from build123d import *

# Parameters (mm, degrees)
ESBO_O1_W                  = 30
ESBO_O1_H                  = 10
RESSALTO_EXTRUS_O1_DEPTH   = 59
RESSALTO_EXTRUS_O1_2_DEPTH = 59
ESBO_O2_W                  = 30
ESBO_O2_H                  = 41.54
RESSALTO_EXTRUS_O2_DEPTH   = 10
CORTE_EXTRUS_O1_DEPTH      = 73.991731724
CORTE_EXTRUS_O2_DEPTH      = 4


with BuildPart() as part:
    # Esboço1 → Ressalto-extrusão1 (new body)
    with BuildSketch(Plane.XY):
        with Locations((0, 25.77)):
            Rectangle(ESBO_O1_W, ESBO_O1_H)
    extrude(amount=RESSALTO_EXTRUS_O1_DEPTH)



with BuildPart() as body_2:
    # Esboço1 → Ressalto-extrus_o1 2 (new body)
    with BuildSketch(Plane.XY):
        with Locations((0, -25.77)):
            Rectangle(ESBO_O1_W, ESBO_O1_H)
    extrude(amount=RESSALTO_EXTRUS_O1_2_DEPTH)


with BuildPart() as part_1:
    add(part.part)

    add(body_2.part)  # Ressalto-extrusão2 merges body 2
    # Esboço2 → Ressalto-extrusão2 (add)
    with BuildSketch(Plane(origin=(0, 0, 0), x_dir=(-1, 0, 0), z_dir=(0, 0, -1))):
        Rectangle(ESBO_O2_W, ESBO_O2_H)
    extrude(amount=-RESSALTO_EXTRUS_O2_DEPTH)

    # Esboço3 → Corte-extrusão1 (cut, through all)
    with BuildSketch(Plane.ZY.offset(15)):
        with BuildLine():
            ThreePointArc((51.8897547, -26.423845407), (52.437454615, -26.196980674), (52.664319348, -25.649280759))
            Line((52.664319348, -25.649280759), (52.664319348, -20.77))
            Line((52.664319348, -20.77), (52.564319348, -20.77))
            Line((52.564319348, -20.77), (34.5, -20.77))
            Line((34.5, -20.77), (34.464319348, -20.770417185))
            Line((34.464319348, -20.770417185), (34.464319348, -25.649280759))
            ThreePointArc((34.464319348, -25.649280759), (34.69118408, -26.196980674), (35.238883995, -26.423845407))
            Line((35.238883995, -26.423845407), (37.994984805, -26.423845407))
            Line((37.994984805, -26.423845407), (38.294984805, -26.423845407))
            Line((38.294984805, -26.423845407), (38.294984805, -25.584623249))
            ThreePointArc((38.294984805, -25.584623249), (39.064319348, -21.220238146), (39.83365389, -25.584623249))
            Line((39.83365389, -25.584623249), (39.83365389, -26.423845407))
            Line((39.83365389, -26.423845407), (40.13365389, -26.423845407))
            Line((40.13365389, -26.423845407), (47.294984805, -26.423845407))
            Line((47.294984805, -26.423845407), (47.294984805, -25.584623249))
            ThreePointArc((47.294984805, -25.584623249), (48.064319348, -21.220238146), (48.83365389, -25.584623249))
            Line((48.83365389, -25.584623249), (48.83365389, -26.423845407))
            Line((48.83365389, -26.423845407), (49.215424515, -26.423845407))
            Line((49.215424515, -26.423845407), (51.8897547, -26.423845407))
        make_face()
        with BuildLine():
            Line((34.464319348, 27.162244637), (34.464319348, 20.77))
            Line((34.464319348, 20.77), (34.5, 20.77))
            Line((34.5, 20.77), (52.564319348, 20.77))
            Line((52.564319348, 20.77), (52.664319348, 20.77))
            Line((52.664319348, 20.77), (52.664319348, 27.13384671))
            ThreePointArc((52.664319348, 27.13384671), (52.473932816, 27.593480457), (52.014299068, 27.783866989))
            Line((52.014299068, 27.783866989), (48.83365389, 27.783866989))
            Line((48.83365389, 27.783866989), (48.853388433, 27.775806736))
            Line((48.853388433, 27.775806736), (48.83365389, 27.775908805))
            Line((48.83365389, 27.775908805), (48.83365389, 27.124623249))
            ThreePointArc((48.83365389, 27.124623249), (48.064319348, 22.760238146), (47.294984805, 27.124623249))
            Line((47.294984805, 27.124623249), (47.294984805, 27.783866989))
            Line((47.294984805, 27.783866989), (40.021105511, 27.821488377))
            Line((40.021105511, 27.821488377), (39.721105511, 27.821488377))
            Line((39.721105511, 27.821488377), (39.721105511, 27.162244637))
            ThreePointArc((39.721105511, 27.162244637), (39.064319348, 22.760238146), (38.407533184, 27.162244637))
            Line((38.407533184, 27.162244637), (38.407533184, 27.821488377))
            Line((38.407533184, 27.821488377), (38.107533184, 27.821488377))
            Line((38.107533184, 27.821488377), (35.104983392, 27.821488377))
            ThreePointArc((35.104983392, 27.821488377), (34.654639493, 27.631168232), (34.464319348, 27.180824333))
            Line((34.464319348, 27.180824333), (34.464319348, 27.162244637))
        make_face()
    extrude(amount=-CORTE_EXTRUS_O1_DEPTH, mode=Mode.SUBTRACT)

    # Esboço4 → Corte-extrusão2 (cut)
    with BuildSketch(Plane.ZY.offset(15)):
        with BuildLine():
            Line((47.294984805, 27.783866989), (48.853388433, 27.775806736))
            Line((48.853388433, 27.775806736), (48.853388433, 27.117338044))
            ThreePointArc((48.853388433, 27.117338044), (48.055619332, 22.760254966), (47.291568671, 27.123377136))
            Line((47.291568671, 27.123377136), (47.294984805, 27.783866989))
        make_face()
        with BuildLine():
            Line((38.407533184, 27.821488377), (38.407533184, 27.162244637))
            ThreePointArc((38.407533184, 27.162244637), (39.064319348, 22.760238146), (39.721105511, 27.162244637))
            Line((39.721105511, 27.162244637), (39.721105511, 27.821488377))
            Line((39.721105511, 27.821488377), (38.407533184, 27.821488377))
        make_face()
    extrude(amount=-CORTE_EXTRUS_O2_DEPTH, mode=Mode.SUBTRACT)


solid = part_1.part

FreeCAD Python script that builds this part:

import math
import FreeCAD as App
import Part
import Sketcher
from FreeCAD import Vector

doc = App.newDocument("Part")
body = doc.addObject("PartDesign::Body", "Body")

# Sketch on XY plane
sketch1 = body.newObject("Sketcher::SketchObject", "Sketch")
sketch1.AttachmentSupport = (doc.getObject("XY_Plane"), [""])
sketch1.MapMode = "FlatFace"
sketch1.addGeometry(Part.LineSegment(Vector(-15, 31, 0), Vector(-15, 21, 0)), False)
sketch1.addGeometry(Part.LineSegment(Vector(-15, 21, 0), Vector(15, 21, 0)), False)
sketch1.addGeometry(Part.LineSegment(Vector(15, 21, 0), Vector(15, 31, 0)), False)
sketch1.addGeometry(Part.LineSegment(Vector(15, 31, 0), Vector(-15, 31, 0)), False)
sketch1.addConstraint(Sketcher.Constraint("Coincident", 0, 2, 1, 1))
sketch1.addConstraint(Sketcher.Constraint("Coincident", 1, 2, 2, 1))
sketch1.addConstraint(Sketcher.Constraint("Coincident", 2, 2, 3, 1))
sketch1.addConstraint(Sketcher.Constraint("Coincident", 3, 2, 0, 1))
sketch1.addConstraint(Sketcher.Constraint("Vertical", 0))
sketch1.addConstraint(Sketcher.Constraint("Horizontal", 1))
sketch1.addConstraint(Sketcher.Constraint("Vertical", 2))
sketch1.addConstraint(Sketcher.Constraint("Horizontal", 3))
sketch1.addConstraint(Sketcher.Constraint("DistanceX", 1, 1, 1, 2, 30.0))
sketch1.addConstraint(Sketcher.Constraint("DistanceY", 0, 2, 0, 1, 10.0))
sketch1.addConstraint(Sketcher.Constraint("DistanceX", 0, 2, -1, 1, 15.0))
sketch1.addConstraint(Sketcher.Constraint("DistanceY", -1, 1, 0, 2, 20.77))
pad1 = body.newObject("PartDesign::Pad", "Pad")
pad1.Profile = sketch1
pad1.Length = 59
body2 = doc.addObject("PartDesign::Body", "Body001")

# Sketch on XY plane
sketch2 = body2.newObject("Sketcher::SketchObject", "Sketch001")
sketch2.AttachmentSupport = (doc.getObject("XY_Plane001"), [""])
sketch2.MapMode = "FlatFace"
sketch2.addGeometry(Part.LineSegment(Vector(-15, -21, 0), Vector(-15, -31, 0)), False)
sketch2.addGeometry(Part.LineSegment(Vector(-15, -31, 0), Vector(15, -31, 0)), False)
sketch2.addGeometry(Part.LineSegment(Vector(15, -31, 0), Vector(15, -21, 0)), False)
sketch2.addGeometry(Part.LineSegment(Vector(15, -21, 0), Vector(-15, -21, 0)), False)
sketch2.addConstraint(Sketcher.Constraint("Coincident", 0, 2, 1, 1))
sketch2.addConstraint(Sketcher.Constraint("Coincident", 1, 2, 2, 1))
sketch2.addConstraint(Sketcher.Constraint("Coincident", 2, 2, 3, 1))
sketch2.addConstraint(Sketcher.Constraint("Coincident", 3, 2, 0, 1))
sketch2.addConstraint(Sketcher.Constraint("Vertical", 0))
sketch2.addConstraint(Sketcher.Constraint("Horizontal", 1))
sketch2.addConstraint(Sketcher.Constraint("Vertical", 2))
sketch2.addConstraint(Sketcher.Constraint("Horizontal", 3))
sketch2.addConstraint(Sketcher.Constraint("DistanceX", 1, 1, 1, 2, 30.0))
sketch2.addConstraint(Sketcher.Constraint("DistanceY", 0, 2, 0, 1, 10.0))
sketch2.addConstraint(Sketcher.Constraint("DistanceX", 0, 2, -1, 1, 15.0))
sketch2.addConstraint(Sketcher.Constraint("DistanceY", 0, 2, -1, 1, 30.77))
pad2 = body2.newObject("PartDesign::Pad", "Pad001")
pad2.Profile = sketch2
pad2.Length = 59
body.AllowCompound = True
doc.recompute()

boolean = body.newObject("PartDesign::Boolean", "Boolean")
boolean.Type = "Fuse"
boolean.addObjects([body2])

# Sketch on XY plane
sketch3 = body.newObject("Sketcher::SketchObject", "Sketch002")
sketch3.AttachmentSupport = (doc.getObject("XY_Plane"), [""])
sketch3.MapMode = "FlatFace"
sketch3.addGeometry(Part.LineSegment(Vector(15, 21, 0), Vector(15, -21, 0)), False)
sketch3.addGeometry(Part.LineSegment(Vector(15, -21, 0), Vector(-15, -21, 0)), False)
sketch3.addGeometry(Part.LineSegment(Vector(-15, -21, 0), Vector(-15, 21, 0)), False)
sketch3.addGeometry(Part.LineSegment(Vector(-15, 21, 0), Vector(15, 21, 0)), False)
sketch3.addConstraint(Sketcher.Constraint("Coincident", 0, 2, 1, 1))
sketch3.addConstraint(Sketcher.Constraint("Coincident", 1, 2, 2, 1))
sketch3.addConstraint(Sketcher.Constraint("Coincident", 2, 2, 3, 1))
sketch3.addConstraint(Sketcher.Constraint("Coincident", 3, 2, 0, 1))
sketch3.addConstraint(Sketcher.Constraint("Vertical", 0))
sketch3.addConstraint(Sketcher.Constraint("Horizontal", 1))
sketch3.addConstraint(Sketcher.Constraint("Vertical", 2))
sketch3.addConstraint(Sketcher.Constraint("Horizontal", 3))
sketch3.addConstraint(Sketcher.Constraint("Symmetric", 0, 2, 2, 2, -1, 1))
sketch3.addConstraint(Sketcher.Constraint("DistanceX", 1, 2, 1, 1, 30.0))
sketch3.addConstraint(Sketcher.Constraint("DistanceY", 0, 2, 0, 1, 41.54))
pad3 = body.newObject("PartDesign::Pad", "Pad002")
pad3.Profile = sketch3
pad3.Length = 10

# Sketch on YZ plane
sketch4 = body.newObject("Sketcher::SketchObject", "Sketch003")
sketch4.AttachmentSupport = (doc.getObject("YZ_Plane"), [""])
sketch4.MapMode = "FlatFace"
sketch4.AttachmentOffset = App.Placement(Vector(0, 0, -15), App.Rotation())
sketch4.addGeometry(Part.ArcOfCircle(Part.Circle(Vector(-25.649, 51.89, 0), Vector(0, 0, 1), 0.775), math.radians(90), math.radians(180)), False)
sketch4.addGeometry(Part.LineSegment(Vector(-25.649, 52.664, 0), Vector(-20.77, 52.664, 0)), False)
sketch4.addGeometry(Part.LineSegment(Vector(-20.77, 52.664, 0), Vector(-20.77, 34.5, 0)), False)
sketch4.addGeometry(Part.LineSegment(Vector(-20.77, 34.5, 0), Vector(-20.77, 34.464, 0)), False)
sketch4.addGeometry(Part.LineSegment(Vector(-20.77, 34.464, 0), Vector(-25.649, 34.464, 0)), False)
sketch4.addGeometry(Part.ArcOfCircle(Part.Circle(Vector(-25.649, 35.239, 0), Vector(0, 0, 1), 0.775), math.radians(180), math.radians(270)), False)
sketch4.addGeometry(Part.LineSegment(Vector(-26.424, 35.239, 0), Vector(-26.424, 38.295, 0)), False)
sketch4.addGeometry(Part.LineSegment(Vector(-26.424, 38.295, 0), Vector(-25.585, 38.295, 0)), False)
sketch4.addGeometry(Part.ArcOfCircle(Part.Circle(Vector(-23.47, 39.064, 0), Vector(0, 0, 1), 2.25), math.radians(-160), math.radians(160)), False)
sketch4.addGeometry(Part.LineSegment(Vector(-25.585, 39.834, 0), Vector(-26.424, 39.834, 0)), False)
sketch4.addGeometry(Part.LineSegment(Vector(-26.424, 39.834, 0), Vector(-26.424, 47.295, 0)), False)
sketch4.addGeometry(Part.LineSegment(Vector(-26.424, 47.295, 0), Vector(-25.585, 47.295, 0)), False)
sketch4.addGeometry(Part.ArcOfCircle(Part.Circle(Vector(-23.47, 48.064, 0), Vector(0, 0, 1), 2.25), math.radians(-160), math.radians(160)), False)
sketch4.addGeometry(Part.LineSegment(Vector(-25.585, 48.834, 0), Vector(-26.424, 48.834, 0)), False)
sketch4.addGeometry(Part.LineSegment(Vector(-26.424, 48.834, 0), Vector(-26.424, 51.89, 0)), False)
sketch4.addGeometry(Part.LineSegment(Vector(20.77, 34.464, 0), Vector(20.77, 52.664, 0)), False)
sketch4.addGeometry(Part.LineSegment(Vector(20.77, 52.664, 0), Vector(27.134, 52.664, 0)), False)
sketch4.addGeometry(Part.ArcOfCircle(Part.Circle(Vector(27.134, 52.014, 0), Vector(0, 0, 1), 0.65), math.radians(0), math.radians(90)), False)
sketch4.addGeometry(Part.LineSegment(Vector(27.784, 52.014, 0), Vector(27.784, 48.834, 0)), False)
sketch4.addGeometry(Part.LineSegment(Vector(27.784, 48.834, 0), Vector(27.776, 48.853, 0)), False)
sketch4.addGeometry(Part.LineSegment(Vector(27.776, 48.853, 0), Vector(27.776, 48.834, 0)), False)
sketch4.addGeometry(Part.LineSegment(Vector(27.776, 48.834, 0), Vector(27.125, 48.834, 0)), False)
sketch4.addGeometry(Part.ArcOfCircle(Part.Circle(Vector(25.01, 48.064, 0), Vector(0, 0, 1), 2.25), math.radians(20), math.radians(340)), False)
sketch4.addGeometry(Part.LineSegment(Vector(27.125, 47.295, 0), Vector(27.784, 47.295, 0)), False)
sketch4.addGeometry(Part.LineSegment(Vector(27.784, 47.295, 0), Vector(27.821, 40.021, 0)), False)
sketch4.addGeometry(Part.LineSegment(Vector(27.821, 40.021, 0), Vector(27.821, 39.721, 0)), False)
sketch4.addGeometry(Part.LineSegment(Vector(27.821, 39.721, 0), Vector(27.162, 39.721, 0)), False)
sketch4.addGeometry(Part.ArcOfCircle(Part.Circle(Vector(25.01, 39.064, 0), Vector(0, 0, 1), 2.25), math.radians(17), math.radians(343)), False)
sketch4.addGeometry(Part.LineSegment(Vector(27.162, 38.408, 0), Vector(27.821, 38.408, 0)), False)
sketch4.addGeometry(Part.LineSegment(Vector(27.821, 38.408, 0), Vector(27.821, 35.105, 0)), False)
sketch4.addGeometry(Part.ArcOfCircle(Part.Circle(Vector(27.172, 35.114, 0), Vector(0, 0, 1), 0.65), math.radians(-89), math.radians(-1)), False)
sketch4.addGeometry(Part.LineSegment(Vector(27.181, 34.464, 0), Vector(20.77, 34.464, 0)), False)
sketch4.addConstraint(Sketcher.Constraint("Tangent", 0, 1, 1, 1))
sketch4.addConstraint(Sketcher.Constraint("Coincident", 1, 2, 2, 1))
sketch4.addConstraint(Sketcher.Constraint("Coincident", 2, 2, 3, 1))
sketch4.addConstraint(Sketcher.Constraint("Coincident", 3, 2, 4, 1))
sketch4.addConstraint(Sketcher.Constraint("Tangent", 4, 2, 5, 2))
sketch4.addConstraint(Sketcher.Constraint("Tangent", 5, 1, 6, 1))
sketch4.addConstraint(Sketcher.Constraint("Coincident", 6, 2, 7, 1))
sketch4.addConstraint(Sketcher.Constraint("Coincident", 7, 2, 8, 1))
sketch4.addConstraint(Sketcher.Constraint("Coincident", 8, 2, 9, 1))
sketch4.addConstraint(Sketcher.Constraint("Coincident", 9, 2, 10, 1))
sketch4.addConstraint(Sketcher.Constraint("Coincident", 10, 2, 11, 1))
sketch4.addConstraint(Sketcher.Constraint("Coincident", 11, 2, 12, 1))
sketch4.addConstraint(Sketcher.Constraint("Coincident", 12, 2, 13, 1))
sketch4.addConstraint(Sketcher.Constraint("Coincident", 13, 2, 14, 1))
sketch4.addConstraint(Sketcher.Constraint("Tangent", 14, 2, 0, 2))
sketch4.addConstraint(Sketcher.Constraint("Coincident", 15, 2, 16, 1))
sketch4.addConstraint(Sketcher.Constraint("Tangent", 16, 2, 17, 2))
sketch4.addConstraint(Sketcher.Constraint("Tangent", 17, 1, 18, 1))
sketch4.addConstraint(Sketcher.Constraint("Coincident", 18, 2, 19, 1))
sketch4.addConstraint(Sketcher.Constraint("Coincident", 19, 2, 20, 1))
sketch4.addConstraint(Sketcher.Constraint("Coincident", 20, 2, 21, 1))
sketch4.addConstraint(Sketcher.Constraint("Coincident", 21, 2, 22, 1))
sketch4.addConstraint(Sketcher.Constraint("Coincident", 22, 2, 23, 1))
sketch4.addConstraint(Sketcher.Constraint("Coincident", 23, 2, 24, 1))
sketch4.addConstraint(Sketcher.Constraint("Coincident", 24, 2, 25, 1))
sketch4.addConstraint(Sketcher.Constraint("Coincident", 25, 2, 26, 1))
sketch4.addConstraint(Sketcher.Constraint("Coincident", 26, 2, 27, 1))
sketch4.addConstraint(Sketcher.Constraint("Coincident", 27, 2, 28, 1))
sketch4.addConstraint(Sketcher.Constraint("Coincident", 28, 2, 29, 1))
sketch4.addConstraint(Sketcher.Constraint("Coincident", 29, 2, 30, 2))
sketch4.addConstraint(Sketcher.Constraint("Coincident", 30, 1, 31, 1))
sketch4.addConstraint(Sketcher.Constraint("Coincident", 31, 2, 15, 1))
sketch4.addConstraint(Sketcher.Constraint("Horizontal", 1))
sketch4.addConstraint(Sketcher.Constraint("Vertical", 2))
sketch4.addConstraint(Sketcher.Constraint("Horizontal", 4))
sketch4.addConstraint(Sketcher.Constraint("Vertical", 6))
sketch4.addConstraint(Sketcher.Constraint("Horizontal", 7))
sketch4.addConstraint(Sketcher.Constraint("Horizontal", 9))
sketch4.addConstraint(Sketcher.Constraint("Vertical", 10))
sketch4.addConstraint(Sketcher.Constraint("Horizontal", 11))
sketch4.addConstraint(Sketcher.Constraint("Horizontal", 13))
sketch4.addConstraint(Sketcher.Constraint("Vertical", 14))
sketch4.addConstraint(Sketcher.Constraint("Vertical", 15))
sketch4.addConstraint(Sketcher.Constraint("Horizontal", 16))
sketch4.addConstraint(Sketcher.Constraint("Vertical", 18))
sketch4.addConstraint(Sketcher.Constraint("Horizontal", 21))
sketch4.addConstraint(Sketcher.Constraint("Horizontal", 23))
sketch4.addConstraint(Sketcher.Constraint("Vertical", 25))
sketch4.addConstraint(Sketcher.Constraint("Horizontal", 26))
sketch4.addConstraint(Sketcher.Constraint("Horizontal", 28))
sketch4.addConstraint(Sketcher.Constraint("Vertical", 29))
sketch4.addConstraint(Sketcher.Constraint("Horizontal", 31))
sketch4.addConstraint(Sketcher.Constraint("Equal", 0, 5))
sketch4.addConstraint(Sketcher.Constraint("Equal", 8, 12))
sketch4.addConstraint(Sketcher.Constraint("Equal", 12, 22))
sketch4.addConstraint(Sketcher.Constraint("Equal", 22, 27))
sketch4.addConstraint(Sketcher.Constraint("Equal", 17, 30))
sketch4.addConstraint(Sketcher.Constraint("Symmetric", 1, 2, 15, 2, -2))
sketch4.addConstraint(Sketcher.Constraint("Parallel", 20, 24))
sketch4.addConstraint(Sketcher.Constraint("Horizontal", 12, 3, 22, 3))
sketch4.addConstraint(Sketcher.Constraint("Horizontal", 8, 3, 27, 3))
sketch4.addConstraint(Sketcher.Constraint("Horizontal", 13, 2, 18, 2))
sketch4.addConstraint(Sketcher.Constraint("Horizontal", 18, 2, 20, 2))
sketch4.addConstraint(Sketcher.Constraint("Horizontal", 11, 2, 22, 2))
sketch4.addConstraint(Sketcher.Constraint("Horizontal", 4, 2, 30, 1))
sketch4.addConstraint(Sketcher.Constraint("Vertical", 0, 3, 5, 3))
sketch4.addConstraint(Sketcher.Constraint("Vertical", 8, 3, 12, 3))
sketch4.addConstraint(Sketcher.Constraint("Vertical", 22, 3, 27, 3))
sketch4.addConstraint(Sketcher.Constraint("Vertical", 7, 2, 8, 2))
sketch4.addConstraint(Sketcher.Constraint("Vertical", 6, 2, 9, 2))
sketch4.addConstraint(Sketcher.Constraint("Vertical", 8, 2, 11, 2))
sketch4.addConstraint(Sketcher.Constraint("Vertical", 11, 2, 12, 2))
sketch4.addConstraint(Sketcher.Constraint("Vertical", 18, 2, 23, 2))
sketch4.addConstraint(Sketcher.Constraint("Vertical", 26, 2, 27, 2))
sketch4.addConstraint(Sketcher.Constraint("Vertical", 25, 2, 28, 2))
sketch4.addConstraint(Sketcher.Constraint("Equal", 23, 26))
sketch4.addConstraint(Sketcher.Constraint("Equal", 6, 14))
sketch4.addConstraint(Sketcher.Constraint("Radius", 8, 2.25))
sketch4.addConstraint(Sketcher.Constraint("DistanceY", 15, 1, 15, 2, 18.2))
sketch4.addConstraint(Sketcher.Constraint("DistanceY", 25, 2, 25, 1, 0.3))
sketch4.addConstraint(Sketcher.Constraint("DistanceY", 8, 3, 12, 3, 9.0))
sketch4.addConstraint(Sketcher.Constraint("DistanceY", -1, 1, 2, 2, 34.5))
sketch4.addConstraint(Sketcher.Constraint("DistanceX", 1, 2, -1, 1, 20.77))
sketch4.addConstraint(Sketcher.Constraint("Radius", 17, 0.65002))
sketch4.addConstraint(Sketcher.Constraint("DistanceY", 6, 1, 6, 2, 3.056101))
sketch4.addConstraint(Sketcher.Constraint("Radius", 0, 0.774565))
sketch4.addConstraint(Sketcher.Constraint("DistanceX", 1, 1, 1, 2, 4.879281))
sketch4.addConstraint(Sketcher.Constraint("DistanceY", 2, 2, 2, 1, 18.164319))
sketch4.addConstraint(Sketcher.Constraint("DistanceY", 29, 2, 29, 1, 3.30255))
sketch4.addConstraint(Sketcher.Constraint("DistanceX", 4, 2, 4, 1, 4.878864))
sketch4.addConstraint(Sketcher.Constraint("DistanceX", 7, 1, 7, 2, 0.839222))
sketch4.addConstraint(Sketcher.Constraint("DistanceX", 16, 1, 16, 2, 6.363847))
sketch4.addConstraint(Sketcher.Constraint("DistanceX", 21, 2, 21, 1, 0.651286))
sketch4.addConstraint(Sketcher.Constraint("DistanceX", 23, 1, 23, 2, 0.659244))
sketch4.addConstraint(Sketcher.Constraint("DistanceX", 31, 2, 31, 1, 6.410824))
sketch4.addConstraint(Sketcher.Constraint("DistanceY", -1, 1, 19, 2, 48.853388))
sketch4.addConstraint(Sketcher.Constraint("DistanceX", -1, 1, 24, 2, 27.821488))
pocket1 = body.newObject("PartDesign::Pocket", "Pocket")
pocket1.Profile = sketch4
pocket1.Type = "ThroughAll"
pocket1.Reversed = True

# Sketch on YZ plane
sketch5 = body.newObject("Sketcher::SketchObject", "Sketch004")
sketch5.AttachmentSupport = (doc.getObject("YZ_Plane"), [""])
sketch5.MapMode = "FlatFace"
sketch5.AttachmentOffset = App.Placement(Vector(0, 0, -15), App.Rotation())
sketch5.addGeometry(Part.LineSegment(Vector(27.8, 48.9, 0), Vector(27.8, 47.3, 0)), False)
sketch5.addGeometry(Part.LineSegment(Vector(27.8, 47.3, 0), Vector(27.1, 47.3, 0)), False)
sketch5.addGeometry(Part.ArcOfCircle(Part.Circle(Vector(25, 48.1, 0), Vector(0, 0, 1), 2.2), math.radians(21), math.radians(340)), False)
sketch5.addGeometry(Part.LineSegment(Vector(27.1, 48.9, 0), Vector(27.8, 48.9, 0)), False)
sketch5.addGeometry(Part.LineSegment(Vector(27.8, 38.4, 0), Vector(27.2, 38.4, 0)), False)
sketch5.addGeometry(Part.ArcOfCircle(Part.Circle(Vector(25, 39.1, 0), Vector(0, 0, 1), 2.2), math.radians(17), math.radians(343)), False)
sketch5.addGeometry(Part.LineSegment(Vector(27.2, 39.7, 0), Vector(27.8, 39.7, 0)), False)
sketch5.addGeometry(Part.LineSegment(Vector(27.8, 39.7, 0), Vector(27.8, 38.4, 0)), False)
sketch5.addConstraint(Sketcher.Constraint("Coincident", 0, 2, 1, 1))
sketch5.addConstraint(Sketcher.Constraint("Coincident", 1, 2, 2, 2))
sketch5.addConstraint(Sketcher.Constraint("Coincident", 2, 1, 3, 1))
sketch5.addConstraint(Sketcher.Constraint("Coincident", 3, 2, 0, 1))
sketch5.addConstraint(Sketcher.Constraint("Coincident", 4, 2, 5, 2))
sketch5.addConstraint(Sketcher.Constraint("Coincident", 5, 1, 6, 1))
sketch5.addConstraint(Sketcher.Constraint("Coincident", 6, 2, 7, 1))
sketch5.addConstraint(Sketcher.Constraint("Coincident", 7, 2, 4, 1))
sketch5.addConstraint(Sketcher.Constraint("Horizontal", 3))
sketch5.addConstraint(Sketcher.Constraint("Horizontal", 4))
sketch5.addConstraint(Sketcher.Constraint("Horizontal", 6))
sketch5.addConstraint(Sketcher.Constraint("Vertical", 7))
sketch5.addConstraint(Sketcher.Constraint("Equal", 2, 5))
sketch5.addConstraint(Sketcher.Constraint("Perpendicular", 0, 1))
sketch5.addConstraint(Sketcher.Constraint("Vertical", 2, 3, 5, 3))
sketch5.addConstraint(Sketcher.Constraint("Vertical", 4, 2, 5, 1))
sketch5.addConstraint(Sketcher.Constraint("Radius", 2, 2.25))
sketch5.addConstraint(Sketcher.Constraint("DistanceY", 5, 3, 2, 3, 9.0))
sketch5.addConstraint(Sketcher.Constraint("Distance", 1, 0.660499))
sketch5.addConstraint(Sketcher.Constraint("DistanceX", 3, 1, 3, 2, 0.658469))
sketch5.addConstraint(Sketcher.Constraint("DistanceX", 2, 3, 2, 1, 2.1071))
sketch5.addConstraint(Sketcher.Constraint("DistanceX", 4, 2, 4, 1, 0.659244))
sketch5.addConstraint(Sketcher.Constraint("DistanceY", 7, 2, 7, 1, 1.313572))
sketch5.addConstraint(Sketcher.Constraint("DistanceX", -1, 1, 2, 3, 25.010238))
sketch5.addConstraint(Sketcher.Constraint("DistanceY", -1, 1, 2, 3, 48.064319))
sketch5.addConstraint(Sketcher.Constraint("DistanceY", -1, 1, 1, 2, 47.291569))
pocket2 = body.newObject("PartDesign::Pocket", "Pocket001")
pocket2.Profile = sketch5
pocket2.Length = 4
pocket2.Reversed = True

doc.recompute()
